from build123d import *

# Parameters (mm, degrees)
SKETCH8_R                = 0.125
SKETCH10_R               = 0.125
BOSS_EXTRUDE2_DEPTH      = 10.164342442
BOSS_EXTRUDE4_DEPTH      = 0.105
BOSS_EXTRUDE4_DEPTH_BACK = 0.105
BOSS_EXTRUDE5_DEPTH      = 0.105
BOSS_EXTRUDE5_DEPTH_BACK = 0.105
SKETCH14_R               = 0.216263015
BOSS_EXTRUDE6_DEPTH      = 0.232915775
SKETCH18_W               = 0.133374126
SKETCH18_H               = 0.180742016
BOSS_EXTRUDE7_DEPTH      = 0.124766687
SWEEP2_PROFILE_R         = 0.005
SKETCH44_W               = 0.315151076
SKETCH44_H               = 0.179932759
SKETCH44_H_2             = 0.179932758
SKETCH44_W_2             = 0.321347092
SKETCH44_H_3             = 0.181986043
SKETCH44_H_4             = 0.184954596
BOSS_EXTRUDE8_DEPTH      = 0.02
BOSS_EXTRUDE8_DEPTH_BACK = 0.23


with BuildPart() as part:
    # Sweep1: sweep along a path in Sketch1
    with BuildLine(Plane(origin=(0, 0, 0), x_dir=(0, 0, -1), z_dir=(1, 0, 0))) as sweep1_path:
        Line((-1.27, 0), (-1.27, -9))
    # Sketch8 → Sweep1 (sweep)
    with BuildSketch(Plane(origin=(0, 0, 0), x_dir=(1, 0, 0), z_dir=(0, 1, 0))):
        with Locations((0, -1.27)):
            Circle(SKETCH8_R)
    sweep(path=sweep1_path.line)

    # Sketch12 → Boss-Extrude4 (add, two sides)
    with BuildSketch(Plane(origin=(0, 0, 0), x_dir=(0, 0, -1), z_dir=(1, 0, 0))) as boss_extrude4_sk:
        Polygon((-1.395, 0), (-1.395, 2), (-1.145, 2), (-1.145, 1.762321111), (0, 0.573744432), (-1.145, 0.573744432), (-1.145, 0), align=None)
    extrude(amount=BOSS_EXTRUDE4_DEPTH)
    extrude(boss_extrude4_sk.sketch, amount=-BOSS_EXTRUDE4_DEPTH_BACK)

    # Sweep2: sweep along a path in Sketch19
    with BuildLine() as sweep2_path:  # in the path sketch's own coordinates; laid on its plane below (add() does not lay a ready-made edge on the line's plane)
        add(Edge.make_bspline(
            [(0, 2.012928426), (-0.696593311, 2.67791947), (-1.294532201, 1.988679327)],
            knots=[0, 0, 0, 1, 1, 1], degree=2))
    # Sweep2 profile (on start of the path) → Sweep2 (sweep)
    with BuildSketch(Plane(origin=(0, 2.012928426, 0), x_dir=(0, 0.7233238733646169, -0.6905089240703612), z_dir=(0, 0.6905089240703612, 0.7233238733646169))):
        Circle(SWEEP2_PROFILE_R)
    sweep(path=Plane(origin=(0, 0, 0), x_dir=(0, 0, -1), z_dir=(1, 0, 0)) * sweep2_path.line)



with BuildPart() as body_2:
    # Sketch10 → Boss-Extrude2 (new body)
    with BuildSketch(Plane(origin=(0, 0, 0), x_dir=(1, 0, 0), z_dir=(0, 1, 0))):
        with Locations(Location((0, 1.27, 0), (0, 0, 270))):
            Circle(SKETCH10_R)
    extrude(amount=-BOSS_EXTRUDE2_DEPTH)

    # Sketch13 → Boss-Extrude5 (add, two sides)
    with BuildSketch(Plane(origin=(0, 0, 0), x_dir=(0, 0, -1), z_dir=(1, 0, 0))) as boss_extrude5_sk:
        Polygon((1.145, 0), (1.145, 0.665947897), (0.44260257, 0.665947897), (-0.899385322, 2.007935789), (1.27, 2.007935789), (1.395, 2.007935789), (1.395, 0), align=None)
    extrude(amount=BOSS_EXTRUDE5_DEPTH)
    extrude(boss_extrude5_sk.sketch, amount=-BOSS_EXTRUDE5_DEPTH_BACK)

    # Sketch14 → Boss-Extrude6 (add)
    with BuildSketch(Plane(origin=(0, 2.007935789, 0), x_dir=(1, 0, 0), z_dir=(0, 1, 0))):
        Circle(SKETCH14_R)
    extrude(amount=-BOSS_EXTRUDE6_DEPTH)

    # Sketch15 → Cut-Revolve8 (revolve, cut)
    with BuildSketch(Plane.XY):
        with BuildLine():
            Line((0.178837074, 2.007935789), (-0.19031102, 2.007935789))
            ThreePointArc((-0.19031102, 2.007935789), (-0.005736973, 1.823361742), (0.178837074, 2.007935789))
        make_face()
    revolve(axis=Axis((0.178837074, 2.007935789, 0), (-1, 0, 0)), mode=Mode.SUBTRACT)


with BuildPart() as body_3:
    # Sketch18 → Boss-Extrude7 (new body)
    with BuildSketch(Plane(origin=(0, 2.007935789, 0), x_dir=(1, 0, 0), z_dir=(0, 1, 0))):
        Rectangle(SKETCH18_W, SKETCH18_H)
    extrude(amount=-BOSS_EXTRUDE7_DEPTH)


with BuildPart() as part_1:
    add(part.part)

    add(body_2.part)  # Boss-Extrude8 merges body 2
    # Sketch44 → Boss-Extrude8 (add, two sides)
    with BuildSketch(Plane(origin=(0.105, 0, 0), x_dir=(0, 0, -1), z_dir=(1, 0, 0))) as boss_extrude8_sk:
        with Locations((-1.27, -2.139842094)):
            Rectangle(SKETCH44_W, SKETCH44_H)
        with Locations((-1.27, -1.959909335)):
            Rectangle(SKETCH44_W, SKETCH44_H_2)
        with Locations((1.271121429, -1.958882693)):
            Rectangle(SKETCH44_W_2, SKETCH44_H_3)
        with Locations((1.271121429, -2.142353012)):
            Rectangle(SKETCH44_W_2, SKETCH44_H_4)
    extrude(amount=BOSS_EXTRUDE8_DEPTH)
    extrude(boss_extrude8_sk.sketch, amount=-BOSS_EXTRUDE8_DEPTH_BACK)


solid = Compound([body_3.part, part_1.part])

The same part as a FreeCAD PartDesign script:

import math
import FreeCAD as App
import Part
import Sketcher
Q = App.Units.Quantity


def add_polygon(sketch, points):
    """Adds a closed chain of lines whose ends are joined by coincident constraints."""
    first, n = sketch.GeometryCount, len(points)
    for a, b in zip(points, points[1:] + points[:1]):
        sketch.addGeometry(Part.LineSegment(App.Vector(*a, 0), App.Vector(*b, 0)), False)
    for i in range(n):
        sketch.addConstraint(Sketcher.Constraint("Coincident", first + i, 2, first + (i + 1) % n, 1))

doc = App.newDocument("Part")
body = doc.addObject("PartDesign::Body", "Body")

# Sketch on XZ plane
sketch1 = doc.addObject("Sketcher::SketchObject", "Sketch")
body.addObject(sketch1)
sketch1.AttachmentSupport = (doc.XZ_Plane, [""])
sketch1.MapMode = "FlatFace"
sketch1.addGeometry(Part.Circle(App.Vector(0, 1.27, 0), App.Vector(0, 0, 1), 0.12), False)
sketch1.addConstraint([
    Sketcher.Constraint("PointOnObject", 0, 3, -2),
    Sketcher.Constraint("Diameter", 0, 0.25),
    Sketcher.Constraint("DistanceY", -1, 1, 0, 3, 1.27),
])

# Sketch on XY plane
sketch2 = doc.addObject("Sketcher::SketchObject", "Sketch001")
body.addObject(sketch2)
sketch2.AttachmentSupport = (doc.XY_Plane, [""])
sketch2.MapMode = "FlatFace"
sketch2.AttachmentOffset = App.Placement(App.Vector(0, 0, 1.27), App.Rotation())
sketch2.addGeometry(Part.LineSegment(App.Vector(0, 0, 0), App.Vector(0, -9, 0)), False)
sketch2.addConstraint([
    Sketcher.Constraint("Vertical", 0),
    Sketcher.Constraint("Coincident", 0, 1, -1, 1),
    Sketcher.Constraint("DistanceY", 0, 2, 0, 1, 9.0),
])
doc.recompute()

additivepipe = doc.addObject("PartDesign::AdditivePipe", "AdditivePipe")
body.addObject(additivepipe)
additivepipe.Profile = sketch1
additivepipe.Spine = (sketch2, ["Edge1"])

# Sketch on YZ plane
sketch3 = doc.addObject("Sketcher::SketchObject", "Sketch002")
body.addObject(sketch3)
sketch3.AttachmentSupport = (doc.YZ_Plane, [""])
sketch3.MapMode = "FlatFace"
add_polygon(sketch3, [(2, 1.4), (0, 1.4), (0, 1.15), (0.57, 1.15), (0.57, 0), (1.76, 1.15), (2, 1.15)])  # lines 0-6
sketch3.addConstraint([
    Sketcher.Constraint("Horizontal", 0),
    Sketcher.Constraint("Vertical", 1),
    Sketcher.Constraint("Horizontal", 2),
    Sketcher.Constraint("Vertical", 3),
    Sketcher.Constraint("Horizontal", 5),
    Sketcher.Constraint("Vertical", 6),
    Sketcher.Constraint("PointOnObject", 0, 2, -2),
    Sketcher.Constraint("PointOnObject", 3, 2, -1),
    Sketcher.Constraint("Horizontal", 2, 2, 4, 2),
    Sketcher.Constraint("DistanceX", 0, 2, 0, 1, 2.0),
    Sketcher.Constraint("DistanceY", 1, 2, 1, 1, 0.25),
    Sketcher.Constraint("DistanceY", 3, 2, 3, 1, 1.145),
    Sketcher.Constraint("DistanceX", 5, 1, 5, 2, 0.237679),
    Sketcher.Constraint("DistanceX", 2, 1, 2, 2, 0.573744),
])
pad1 = doc.addObject("PartDesign::Pad", "Pad")
body.addObject(pad1)
pad1.Profile = sketch3
pad1.Type = "TwoLengths"
pad1.Length = 0.105
pad1.Length2 = 0.105

# Sketch on an angled plane
sketch4 = doc.addObject("Sketcher::SketchObject", "Sketch003")
body.addObject(sketch4)
sketch4.Placement = App.Placement(App.Vector(0, 2.012928, 0), App.Rotation(App.Vector(0, 0.723323873, -0.690508924), App.Vector(-0.999999999, 0, 0), App.Vector(0, 0.690508924, 0.723323873), "ZXY"))
sketch4.addGeometry(Part.Circle(App.Vector(0, 0, 0), App.Vector(0, 0, 1), 0.005), False)
sketch4.addConstraint([
    Sketcher.Constraint("Coincident", 0, 3, -1, 1),
    Sketcher.Constraint("Diameter", 0, 0.01),
])

# Sketch on YZ plane
sketch5 = doc.addObject("Sketcher::SketchObject", "Sketch004")
body.addObject(sketch5)
sketch5.AttachmentSupport = (doc.YZ_Plane, [""])
sketch5.MapMode = "FlatFace"
sketch5.addGeometry(Part.BSplineCurve([App.Vector(2.012928, 0, 0), App.Vector(2.677919, 0.696593, 0), App.Vector(1.988679, 1.294532, 0)], [3, 3], [0, 1], False, 2, [1, 1, 1], False), False)
sketch5.addConstraint(Sketcher.Constraint("Block", 0))
doc.recompute()

additivepipe2 = doc.addObject("PartDesign::AdditivePipe", "AdditivePipe001")
body.addObject(additivepipe2)
additivepipe2.Profile = sketch4
additivepipe2.Spine = (sketch5, ["Edge1"])
body2 = doc.addObject("PartDesign::Body", "Body001")

# Sketch on XZ plane
sketch6 = doc.addObject("Sketcher::SketchObject", "Sketch005")
body2.addObject(sketch6)
sketch6.AttachmentSupport = (doc.getObject("XZ_Plane001"), [""])
sketch6.MapMode = "FlatFace"
sketch6.addGeometry(Part.Circle(App.Vector(0, -1.27, 0), App.Vector(0, 0, 1), 0.12), False)
sketch6.addConstraint([
    Sketcher.Constraint("PointOnObject", 0, 3, -2),
    Sketcher.Constraint("Diameter", 0, 0.25),
    Sketcher.Constraint("DistanceY", 0, 3, -1, 1, 1.27),
])
pad2 = doc.addObject("PartDesign::Pad", "Pad001")
body2.addObject(pad2)
pad2.Profile = sketch6
pad2.Length = 10.164342

# Sketch on YZ plane
sketch7 = doc.addObject("Sketcher::SketchObject", "Sketch006")
body2.addObject(sketch7)
sketch7.AttachmentSupport = (doc.getObject("YZ_Plane001"), [""])
sketch7.MapMode = "FlatFace"
add_polygon(sketch7, [(0.67, -1.15), (0, -1.15), (0, -1.4), (2.01, -1.4), (2.01, 0.9), (0.67, -0.44)])  # lines 0-5
sketch7.addConstraint([
    Sketcher.Constraint("Horizontal", 0),
    Sketcher.Constraint("Vertical", 1),
    Sketcher.Constraint("Horizontal", 2),
    Sketcher.Constraint("Vertical", 3),
    Sketcher.Constraint("Vertical", 5),
    Sketcher.Constraint("PointOnObject", 0, 2, -2),
    Sketcher.Constraint("Angle", 4, Q("-135 deg")),
    Sketcher.Constraint("DistanceY", 1, 2, 1, 1, 0.25),
    Sketcher.Constraint("DistanceY", 0, 2, -1, 1, 1.145),
    Sketcher.Constraint("DistanceX", 0, 2, 0, 1, 0.665948),
    Sketcher.Constraint("DistanceX", 2, 1, 2, 2, 2.007936),
    Sketcher.Constraint("DistanceY", 3, 1, 3, 2, 2.294385),
])
pad3 = doc.addObject("PartDesign::Pad", "Pad002")
body2.addObject(pad3)
pad3.Profile = sketch7
pad3.Type = "TwoLengths"
pad3.Length = 0.105
pad3.Length2 = 0.105

# Sketch on XZ plane
sketch8 = doc.addObject("Sketcher::SketchObject", "Sketch007")
body2.addObject(sketch8)
sketch8.AttachmentSupport = (doc.getObject("XZ_Plane001"), [""])
sketch8.MapMode = "FlatFace"
sketch8.AttachmentOffset = App.Placement(App.Vector(0, 0, -2.007936), App.Rotation())
sketch8.addGeometry(Part.Circle(App.Vector(0, 0, 0), App.Vector(0, 0, 1), 0.22), False)
sketch8.addConstraint([
    Sketcher.Constraint("Coincident", 0, 3, -1, 1),
    Sketcher.Constraint("Diameter", 0, 0.432526),
])
pad4 = doc.addObject("PartDesign::Pad", "Pad003")
body2.addObject(pad4)
pad4.Profile = sketch8
pad4.Length = 0.232916

# Sketch on XY plane
sketch9 = doc.addObject("Sketcher::SketchObject", "Sketch008")
body2.addObject(sketch9)
sketch9.AttachmentSupport = (doc.getObject("XY_Plane001"), [""])
sketch9.MapMode = "FlatFace"
sketch9.addGeometry([
    Part.LineSegment(App.Vector(0.18, 2.01, 0), App.Vector(-0.19, 2.01, 0)),
    Part.ArcOfCircle(Part.Circle(App.Vector(-0.01, 2.01, 0), App.Vector(0, 0, 1), 0.18), math.radians(180), math.radians(360)),
], False)
sketch9.addGeometry(Part.LineSegment(App.Vector(0.18, 2.01, 0), App.Vector(-0.19, 2.01, 0)), True)  # axis
sketch9.addConstraint([
    Sketcher.Constraint("Coincident", 0, 1, 1, 2),
    Sketcher.Constraint("Coincident", 1, 1, 0, 2),
    Sketcher.Constraint("Horizontal", 0),
    Sketcher.Constraint("Horizontal", 2),
    Sketcher.Constraint("Coincident", 2, 1, 0, 1),
    Sketcher.Constraint("Horizontal", 1, 3, 0, 1),
    Sketcher.Constraint("Equal", 0, 2),
    Sketcher.Constraint("Radius", 1, 0.184574),
    Sketcher.Constraint("DistanceX", 1, 1, -1, 1, 0.190311),
    Sketcher.Constraint("DistanceY", -1, 1, 1, 3, 2.007936),
])
groove = doc.addObject("PartDesign::Groove", "Groove")
body2.addObject(groove)
groove.Profile = sketch9
groove.ReferenceAxis = (sketch9, ["Axis0"])
groove.Angle = 360
body3 = doc.addObject("PartDesign::Body", "Body002")

# Sketch on XZ plane
sketch10 = doc.addObject("Sketcher::SketchObject", "Sketch009")
body3.addObject(sketch10)
sketch10.AttachmentSupport = (doc.getObject("XZ_Plane002"), [""])
sketch10.MapMode = "FlatFace"
sketch10.AttachmentOffset = App.Placement(App.Vector(0, 0, -2.007936), App.Rotation())
add_polygon(sketch10, [(-0.07, -0.09), (-0.07, 0.09), (0.07, 0.09), (0.07, -0.09)])  # lines 0-3
sketch10.addConstraint([
    Sketcher.Constraint("Vertical", 0),
    Sketcher.Constraint("Horizontal", 1),
    Sketcher.Constraint("Vertical", 2),
    Sketcher.Constraint("Horizontal", 3),
    Sketcher.Constraint("Symmetric", 0, 2, 2, 2, -1, 1),
    Sketcher.Constraint("DistanceX", 1, 1, 1, 2, 0.133374),
    Sketcher.Constraint("DistanceY", 0, 1, 0, 2, 0.180742),
])
pad5 = doc.addObject("PartDesign::Pad", "Pad004")
body3.addObject(pad5)
pad5.Profile = sketch10
pad5.Length = 0.124767
body.AllowCompound = True
doc.recompute()

boolean = doc.addObject("PartDesign::Boolean", "Boolean")
body.addObject(boolean)
boolean.Type = "Fuse"
boolean.addObjects([body2])

# Sketch on YZ plane
sketch11 = doc.addObject("Sketcher::SketchObject", "Sketch010")
body.addObject(sketch11)
sketch11.AttachmentSupport = (doc.YZ_Plane, [""])
sketch11.MapMode = "FlatFace"
sketch11.AttachmentOffset = App.Placement(App.Vector(0, 0, 0.105), App.Rotation())
add_polygon(sketch11, [(-2.23, 1.43), (-2.23, 1.11), (-1.87, 1.11), (-1.87, 1.43)])  # lines 0-3
add_polygon(sketch11, [(-1.87, -1.11), (-2.23, -1.11), (-2.23, -1.43), (-1.87, -1.43)])  # lines 4-7
sketch11.addConstraint([
    Sketcher.Constraint("Vertical", 0),
    Sketcher.Constraint("Horizontal", 1),
    Sketcher.Constraint("Vertical", 2),
    Sketcher.Constraint("Horizontal", 3),
    Sketcher.Constraint("Horizontal", 4),
    Sketcher.Constraint("Vertical", 5),
    Sketcher.Constraint("Horizontal", 6),
    Sketcher.Constraint("Vertical", 7),
    Sketcher.Constraint("DistanceX", 4, 2, 4, 1, 0.366941),
    Sketcher.Constraint("DistanceY", 0, 2, 0, 1, 0.315151),
    Sketcher.Constraint("DistanceX", 1, 1, 1, 2, 0.359866),
    Sketcher.Constraint("DistanceY", 5, 2, 5, 1, 0.321347),
    Sketcher.Constraint("DistanceX", 0, 2, -1, 1, 2.229808),
    Sketcher.Constraint("DistanceX", 4, 2, -1, 1, 2.23483),
    Sketcher.Constraint("DistanceY", 5, 2, 0, 2, 2.544219),
    Sketcher.Constraint("DistanceY", -1, 1, 0, 2, 1.112424),
])
pad6 = doc.addObject("PartDesign::Pad", "Pad005")
body.addObject(pad6)
pad6.Profile = sketch11
pad6.Type = "TwoLengths"
pad6.Length = 0.02
pad6.Length2 = 0.23

doc.recompute()
